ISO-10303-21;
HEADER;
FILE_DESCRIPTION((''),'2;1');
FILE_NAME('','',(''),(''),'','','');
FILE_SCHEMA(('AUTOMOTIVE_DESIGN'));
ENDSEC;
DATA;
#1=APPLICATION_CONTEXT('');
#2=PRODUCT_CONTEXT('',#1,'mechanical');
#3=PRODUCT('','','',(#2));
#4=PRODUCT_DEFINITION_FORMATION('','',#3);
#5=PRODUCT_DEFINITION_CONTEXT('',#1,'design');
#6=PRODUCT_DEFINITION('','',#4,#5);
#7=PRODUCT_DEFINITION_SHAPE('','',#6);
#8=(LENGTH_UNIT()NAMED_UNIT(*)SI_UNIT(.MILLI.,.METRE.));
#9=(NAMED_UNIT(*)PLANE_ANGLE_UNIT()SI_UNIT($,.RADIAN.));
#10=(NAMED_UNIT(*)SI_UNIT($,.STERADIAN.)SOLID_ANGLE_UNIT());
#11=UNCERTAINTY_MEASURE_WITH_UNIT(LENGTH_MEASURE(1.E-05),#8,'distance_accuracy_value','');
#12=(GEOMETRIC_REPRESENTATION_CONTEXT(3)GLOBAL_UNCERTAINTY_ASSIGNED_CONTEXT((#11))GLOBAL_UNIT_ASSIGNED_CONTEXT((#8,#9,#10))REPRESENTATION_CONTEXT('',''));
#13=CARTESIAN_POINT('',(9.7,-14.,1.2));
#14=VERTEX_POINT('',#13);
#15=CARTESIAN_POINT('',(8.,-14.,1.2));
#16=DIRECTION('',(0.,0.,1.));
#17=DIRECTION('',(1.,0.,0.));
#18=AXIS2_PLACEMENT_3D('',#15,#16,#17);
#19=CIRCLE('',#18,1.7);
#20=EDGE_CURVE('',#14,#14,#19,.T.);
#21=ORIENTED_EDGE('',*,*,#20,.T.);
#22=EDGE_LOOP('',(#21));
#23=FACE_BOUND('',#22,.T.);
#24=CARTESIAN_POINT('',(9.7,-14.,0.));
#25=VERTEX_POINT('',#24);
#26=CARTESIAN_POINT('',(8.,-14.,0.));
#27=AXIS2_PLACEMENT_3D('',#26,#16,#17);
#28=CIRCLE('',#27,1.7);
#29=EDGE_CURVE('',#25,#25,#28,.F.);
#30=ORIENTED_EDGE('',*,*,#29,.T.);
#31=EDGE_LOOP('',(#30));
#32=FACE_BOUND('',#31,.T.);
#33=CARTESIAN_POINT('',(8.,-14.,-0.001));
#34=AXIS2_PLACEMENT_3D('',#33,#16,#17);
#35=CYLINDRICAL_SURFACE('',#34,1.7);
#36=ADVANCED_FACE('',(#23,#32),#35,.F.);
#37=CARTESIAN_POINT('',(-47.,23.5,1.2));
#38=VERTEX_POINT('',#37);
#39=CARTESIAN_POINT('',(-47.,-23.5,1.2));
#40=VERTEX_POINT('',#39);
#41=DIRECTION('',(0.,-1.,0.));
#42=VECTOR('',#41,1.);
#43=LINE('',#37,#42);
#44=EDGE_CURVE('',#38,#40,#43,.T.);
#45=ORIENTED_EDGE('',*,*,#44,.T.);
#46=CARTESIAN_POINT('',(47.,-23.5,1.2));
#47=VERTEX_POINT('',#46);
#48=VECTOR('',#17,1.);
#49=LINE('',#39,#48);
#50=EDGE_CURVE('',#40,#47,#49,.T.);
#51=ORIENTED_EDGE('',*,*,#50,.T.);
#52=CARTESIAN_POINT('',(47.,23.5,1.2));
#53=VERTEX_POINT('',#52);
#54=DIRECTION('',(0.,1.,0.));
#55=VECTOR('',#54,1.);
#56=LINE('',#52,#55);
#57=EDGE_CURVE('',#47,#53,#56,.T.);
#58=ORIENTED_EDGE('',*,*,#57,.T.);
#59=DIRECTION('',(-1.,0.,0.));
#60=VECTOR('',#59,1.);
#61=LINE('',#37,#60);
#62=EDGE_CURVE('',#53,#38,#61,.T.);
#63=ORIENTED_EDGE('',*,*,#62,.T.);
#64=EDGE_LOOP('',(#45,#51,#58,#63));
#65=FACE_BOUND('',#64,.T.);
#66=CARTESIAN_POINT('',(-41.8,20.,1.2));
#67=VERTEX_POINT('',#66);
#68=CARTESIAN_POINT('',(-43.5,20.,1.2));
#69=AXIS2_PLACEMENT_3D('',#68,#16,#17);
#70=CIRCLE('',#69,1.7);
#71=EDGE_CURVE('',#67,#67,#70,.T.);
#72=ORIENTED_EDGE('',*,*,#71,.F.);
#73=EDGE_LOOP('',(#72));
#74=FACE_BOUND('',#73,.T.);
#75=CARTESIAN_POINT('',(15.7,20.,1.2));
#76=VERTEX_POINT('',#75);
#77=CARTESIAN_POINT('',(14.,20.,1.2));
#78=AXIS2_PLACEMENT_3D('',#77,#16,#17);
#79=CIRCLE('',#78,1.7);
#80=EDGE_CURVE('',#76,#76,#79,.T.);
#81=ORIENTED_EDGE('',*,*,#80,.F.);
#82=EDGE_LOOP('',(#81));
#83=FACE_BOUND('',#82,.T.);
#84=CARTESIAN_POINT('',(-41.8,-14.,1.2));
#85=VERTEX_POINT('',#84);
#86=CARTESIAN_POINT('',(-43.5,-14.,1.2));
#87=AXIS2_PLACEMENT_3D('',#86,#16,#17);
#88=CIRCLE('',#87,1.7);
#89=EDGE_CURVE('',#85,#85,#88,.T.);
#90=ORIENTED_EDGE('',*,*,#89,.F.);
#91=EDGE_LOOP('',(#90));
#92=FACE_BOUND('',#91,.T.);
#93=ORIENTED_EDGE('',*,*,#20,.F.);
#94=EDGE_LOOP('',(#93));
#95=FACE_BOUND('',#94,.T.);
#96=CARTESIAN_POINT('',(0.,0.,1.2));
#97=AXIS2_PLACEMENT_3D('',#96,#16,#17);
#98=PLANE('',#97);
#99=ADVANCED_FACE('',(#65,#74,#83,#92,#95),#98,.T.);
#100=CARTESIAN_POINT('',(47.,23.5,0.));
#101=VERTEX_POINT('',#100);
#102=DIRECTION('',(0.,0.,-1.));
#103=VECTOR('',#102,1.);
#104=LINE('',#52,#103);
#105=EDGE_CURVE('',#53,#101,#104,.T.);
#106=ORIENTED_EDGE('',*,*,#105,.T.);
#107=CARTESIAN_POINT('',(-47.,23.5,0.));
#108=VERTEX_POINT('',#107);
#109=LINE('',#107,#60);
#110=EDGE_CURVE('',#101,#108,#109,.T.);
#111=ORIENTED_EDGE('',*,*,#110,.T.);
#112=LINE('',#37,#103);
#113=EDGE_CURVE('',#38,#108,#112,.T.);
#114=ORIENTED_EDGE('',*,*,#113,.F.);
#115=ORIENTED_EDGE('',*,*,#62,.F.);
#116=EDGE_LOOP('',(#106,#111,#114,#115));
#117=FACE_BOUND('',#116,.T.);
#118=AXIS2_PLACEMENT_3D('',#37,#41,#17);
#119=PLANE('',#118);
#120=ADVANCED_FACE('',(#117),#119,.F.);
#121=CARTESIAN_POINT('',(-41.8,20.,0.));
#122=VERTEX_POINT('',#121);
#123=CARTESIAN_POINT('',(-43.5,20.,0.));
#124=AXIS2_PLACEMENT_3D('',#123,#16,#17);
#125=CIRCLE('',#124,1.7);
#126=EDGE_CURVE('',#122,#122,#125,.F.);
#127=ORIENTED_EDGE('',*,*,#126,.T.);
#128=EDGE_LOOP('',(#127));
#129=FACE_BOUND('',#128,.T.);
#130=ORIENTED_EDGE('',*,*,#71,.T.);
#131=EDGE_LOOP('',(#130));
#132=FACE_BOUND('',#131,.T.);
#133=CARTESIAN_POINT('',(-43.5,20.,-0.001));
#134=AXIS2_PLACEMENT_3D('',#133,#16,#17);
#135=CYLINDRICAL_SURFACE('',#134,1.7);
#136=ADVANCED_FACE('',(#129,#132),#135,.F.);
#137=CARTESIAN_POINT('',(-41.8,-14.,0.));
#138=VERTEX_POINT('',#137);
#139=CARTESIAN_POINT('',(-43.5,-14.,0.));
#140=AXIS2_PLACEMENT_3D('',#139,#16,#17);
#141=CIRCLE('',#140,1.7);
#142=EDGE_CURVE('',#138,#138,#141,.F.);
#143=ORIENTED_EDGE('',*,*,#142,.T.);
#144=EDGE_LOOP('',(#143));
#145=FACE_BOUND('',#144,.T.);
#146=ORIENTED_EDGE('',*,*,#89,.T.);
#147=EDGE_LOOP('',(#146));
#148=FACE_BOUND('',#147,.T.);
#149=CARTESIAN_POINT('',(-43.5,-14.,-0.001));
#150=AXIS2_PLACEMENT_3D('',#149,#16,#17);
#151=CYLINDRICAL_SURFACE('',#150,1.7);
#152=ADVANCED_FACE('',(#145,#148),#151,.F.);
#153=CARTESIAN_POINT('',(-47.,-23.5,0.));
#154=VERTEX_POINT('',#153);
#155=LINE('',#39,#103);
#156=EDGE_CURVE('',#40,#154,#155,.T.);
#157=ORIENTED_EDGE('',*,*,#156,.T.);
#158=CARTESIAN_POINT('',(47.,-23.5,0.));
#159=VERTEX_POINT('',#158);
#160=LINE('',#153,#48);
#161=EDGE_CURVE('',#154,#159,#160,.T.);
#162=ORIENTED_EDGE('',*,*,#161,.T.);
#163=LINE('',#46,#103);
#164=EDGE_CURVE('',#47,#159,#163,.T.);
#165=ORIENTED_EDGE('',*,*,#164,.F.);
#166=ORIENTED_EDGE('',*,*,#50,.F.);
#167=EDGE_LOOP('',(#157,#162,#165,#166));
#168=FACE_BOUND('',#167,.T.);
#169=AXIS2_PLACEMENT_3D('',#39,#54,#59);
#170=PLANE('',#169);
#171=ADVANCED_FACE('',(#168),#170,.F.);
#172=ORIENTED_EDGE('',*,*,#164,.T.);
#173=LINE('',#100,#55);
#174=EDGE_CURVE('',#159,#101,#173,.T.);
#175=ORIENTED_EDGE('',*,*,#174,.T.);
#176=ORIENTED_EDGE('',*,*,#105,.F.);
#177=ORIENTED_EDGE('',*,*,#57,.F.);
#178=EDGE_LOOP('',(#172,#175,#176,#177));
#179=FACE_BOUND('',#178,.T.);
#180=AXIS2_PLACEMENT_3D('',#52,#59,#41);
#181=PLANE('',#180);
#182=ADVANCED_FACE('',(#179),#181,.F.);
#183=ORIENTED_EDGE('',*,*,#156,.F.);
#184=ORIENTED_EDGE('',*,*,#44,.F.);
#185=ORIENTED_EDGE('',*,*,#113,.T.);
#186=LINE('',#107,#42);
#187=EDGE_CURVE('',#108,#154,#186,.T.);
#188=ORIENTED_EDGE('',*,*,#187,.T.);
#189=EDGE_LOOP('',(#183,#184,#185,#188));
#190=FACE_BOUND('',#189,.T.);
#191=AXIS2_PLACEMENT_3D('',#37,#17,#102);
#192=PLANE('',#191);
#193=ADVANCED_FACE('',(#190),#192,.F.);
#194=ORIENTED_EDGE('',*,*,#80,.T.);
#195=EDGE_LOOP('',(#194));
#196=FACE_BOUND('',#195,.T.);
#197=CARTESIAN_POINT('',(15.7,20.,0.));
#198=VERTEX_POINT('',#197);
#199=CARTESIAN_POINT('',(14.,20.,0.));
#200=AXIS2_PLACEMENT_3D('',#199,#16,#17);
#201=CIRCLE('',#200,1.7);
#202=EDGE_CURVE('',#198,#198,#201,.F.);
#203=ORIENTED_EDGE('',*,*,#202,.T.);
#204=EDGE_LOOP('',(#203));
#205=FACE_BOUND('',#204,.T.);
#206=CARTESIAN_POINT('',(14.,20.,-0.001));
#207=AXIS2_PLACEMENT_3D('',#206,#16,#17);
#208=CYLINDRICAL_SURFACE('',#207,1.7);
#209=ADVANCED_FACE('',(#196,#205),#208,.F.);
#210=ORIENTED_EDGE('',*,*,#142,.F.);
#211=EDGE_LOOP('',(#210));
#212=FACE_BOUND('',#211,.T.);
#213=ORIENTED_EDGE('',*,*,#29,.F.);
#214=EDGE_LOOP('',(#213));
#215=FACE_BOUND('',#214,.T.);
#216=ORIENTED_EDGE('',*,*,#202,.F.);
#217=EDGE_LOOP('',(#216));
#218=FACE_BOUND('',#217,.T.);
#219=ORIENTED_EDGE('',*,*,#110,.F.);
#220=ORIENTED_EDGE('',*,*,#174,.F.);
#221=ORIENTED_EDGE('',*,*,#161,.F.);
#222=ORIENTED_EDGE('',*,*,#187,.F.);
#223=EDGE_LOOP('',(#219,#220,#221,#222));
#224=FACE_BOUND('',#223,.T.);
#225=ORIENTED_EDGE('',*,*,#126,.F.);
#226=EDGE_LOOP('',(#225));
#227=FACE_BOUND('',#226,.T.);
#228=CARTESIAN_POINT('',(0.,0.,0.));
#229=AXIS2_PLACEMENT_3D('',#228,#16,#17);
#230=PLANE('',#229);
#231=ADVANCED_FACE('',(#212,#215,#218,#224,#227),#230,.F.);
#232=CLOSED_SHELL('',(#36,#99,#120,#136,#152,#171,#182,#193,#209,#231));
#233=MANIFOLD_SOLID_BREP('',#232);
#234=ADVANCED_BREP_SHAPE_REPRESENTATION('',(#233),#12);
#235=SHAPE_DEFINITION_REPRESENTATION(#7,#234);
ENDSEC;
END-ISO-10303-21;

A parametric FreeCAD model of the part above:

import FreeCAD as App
import Part
import Sketcher
from FreeCAD import Vector

doc = App.newDocument("Part")
body = doc.addObject("PartDesign::Body", "Body")

# Sketch on XY plane
sketch1 = body.newObject("Sketcher::SketchObject", "Sketch")
sketch1.AttachmentSupport = (doc.getObject("XY_Plane"), [""])
sketch1.MapMode = "FlatFace"
sketch1.addGeometry([
    Part.LineSegment(Vector(-47, 24, 0), Vector(-47, -24, 0)),
    Part.LineSegment(Vector(-47, -24, 0), Vector(47, -24, 0)),
    Part.LineSegment(Vector(47, -24, 0), Vector(47, 24, 0)),
    Part.LineSegment(Vector(47, 24, 0), Vector(-47, 24, 0)),
], False)
sketch1.addConstraint([
    Sketcher.Constraint("Coincident", 0, 2, 1, 1),
    Sketcher.Constraint("Coincident", 1, 2, 2, 1),
    Sketcher.Constraint("Coincident", 2, 2, 3, 1),
    Sketcher.Constraint("Coincident", 3, 2, 0, 1),
    Sketcher.Constraint("Vertical", 0),
    Sketcher.Constraint("Horizontal", 1),
    Sketcher.Constraint("Vertical", 2),
    Sketcher.Constraint("Horizontal", 3),
    Sketcher.Constraint("Symmetric", 0, 2, 2, 2, -1, 1),
    Sketcher.Constraint("DistanceX", 1, 1, 1, 2, 94.0),
    Sketcher.Constraint("DistanceY", 0, 2, 0, 1, 47.0),
])
pad1 = body.newObject("PartDesign::Pad", "Pad")
pad1.Profile = sketch1
pad1.Length = 1.2

# Sketch on XY plane
sketch2 = body.newObject("Sketcher::SketchObject", "Sketch001")
sketch2.AttachmentSupport = (doc.getObject("XY_Plane"), [""])
sketch2.MapMode = "FlatFace"
sketch2.AttachmentOffset = App.Placement(Vector(0, 0, 1.2), App.Rotation())
sketch2.addGeometry(Part.Circle(Vector(14, 20, 0), Vector(0, 0, 1), 1.7), False)
sketch2.addConstraint([
    Sketcher.Constraint("Diameter", 0, 3.4),
    Sketcher.Constraint("DistanceX", -1, 1, 0, 3, 14.0),
    Sketcher.Constraint("DistanceY", -1, 1, 0, 3, 20.0),
])
pocket1 = body.newObject("PartDesign::Pocket", "Pocket")
pocket1.Profile = sketch2
pocket1.Type = "UpToFirst"

# Sketch on XY plane
sketch3 = body.newObject("Sketcher::SketchObject", "Sketch002")
sketch3.AttachmentSupport = (doc.getObject("XY_Plane"), [""])
sketch3.MapMode = "FlatFace"
sketch3.AttachmentOffset = App.Placement(Vector(0, 0, 1.2), App.Rotation())
sketch3.addGeometry(Part.Circle(Vector(8, -14, 0), Vector(0, 0, 1), 1.7), False)
sketch3.addConstraint([
    Sketcher.Constraint("Diameter", 0, 3.4),
    Sketcher.Constraint("DistanceX", -1, 1, 0, 3, 8.0),
    Sketcher.Constraint("DistanceY", 0, 3, -1, 1, 14.0),
])
pocket2 = body.newObject("PartDesign::Pocket", "Pocket001")
pocket2.Profile = sketch3
pocket2.Type = "UpToFirst"

# Sketch on XY plane
sketch4 = body.newObject("Sketcher::SketchObject", "Sketch003")
sketch4.AttachmentSupport = (doc.getObject("XY_Plane"), [""])
sketch4.MapMode = "FlatFace"
sketch4.AttachmentOffset = App.Placement(Vector(0, 0, 1.2), App.Rotation())
sketch4.addGeometry(Part.Circle(Vector(-43.5, -14, 0), Vector(0, 0, 1), 1.7), False)
sketch4.addConstraint([
    Sketcher.Constraint("Diameter", 0, 3.4),
    Sketcher.Constraint("DistanceY", 0, 3, -1, 1, 14.0),
    Sketcher.Constraint("DistanceX", 0, 3, -1, 1, 43.5),
])
pocket3 = body.newObject("PartDesign::Pocket", "Pocket002")
pocket3.Profile = sketch4
pocket3.Type = "UpToFirst"

# Sketch on XY plane
sketch5 = body.newObject("Sketcher::SketchObject", "Sketch004")
sketch5.AttachmentSupport = (doc.getObject("XY_Plane"), [""])
sketch5.MapMode = "FlatFace"
sketch5.AttachmentOffset = App.Placement(Vector(0, 0, 1.2), App.Rotation())
sketch5.addGeometry(Part.Circle(Vector(-43.5, 20, 0), Vector(0, 0, 1), 1.7), False)
sketch5.addConstraint([
    Sketcher.Constraint("Diameter", 0, 3.4),
    Sketcher.Constraint("DistanceY", -1, 1, 0, 3, 20.0),
    Sketcher.Constraint("DistanceX", 0, 3, -1, 1, 43.5),
])
pocket4 = body.newObject("PartDesign::Pocket", "Pocket003")
pocket4.Profile = sketch5
pocket4.Type = "UpToFirst"

doc.recompute()
